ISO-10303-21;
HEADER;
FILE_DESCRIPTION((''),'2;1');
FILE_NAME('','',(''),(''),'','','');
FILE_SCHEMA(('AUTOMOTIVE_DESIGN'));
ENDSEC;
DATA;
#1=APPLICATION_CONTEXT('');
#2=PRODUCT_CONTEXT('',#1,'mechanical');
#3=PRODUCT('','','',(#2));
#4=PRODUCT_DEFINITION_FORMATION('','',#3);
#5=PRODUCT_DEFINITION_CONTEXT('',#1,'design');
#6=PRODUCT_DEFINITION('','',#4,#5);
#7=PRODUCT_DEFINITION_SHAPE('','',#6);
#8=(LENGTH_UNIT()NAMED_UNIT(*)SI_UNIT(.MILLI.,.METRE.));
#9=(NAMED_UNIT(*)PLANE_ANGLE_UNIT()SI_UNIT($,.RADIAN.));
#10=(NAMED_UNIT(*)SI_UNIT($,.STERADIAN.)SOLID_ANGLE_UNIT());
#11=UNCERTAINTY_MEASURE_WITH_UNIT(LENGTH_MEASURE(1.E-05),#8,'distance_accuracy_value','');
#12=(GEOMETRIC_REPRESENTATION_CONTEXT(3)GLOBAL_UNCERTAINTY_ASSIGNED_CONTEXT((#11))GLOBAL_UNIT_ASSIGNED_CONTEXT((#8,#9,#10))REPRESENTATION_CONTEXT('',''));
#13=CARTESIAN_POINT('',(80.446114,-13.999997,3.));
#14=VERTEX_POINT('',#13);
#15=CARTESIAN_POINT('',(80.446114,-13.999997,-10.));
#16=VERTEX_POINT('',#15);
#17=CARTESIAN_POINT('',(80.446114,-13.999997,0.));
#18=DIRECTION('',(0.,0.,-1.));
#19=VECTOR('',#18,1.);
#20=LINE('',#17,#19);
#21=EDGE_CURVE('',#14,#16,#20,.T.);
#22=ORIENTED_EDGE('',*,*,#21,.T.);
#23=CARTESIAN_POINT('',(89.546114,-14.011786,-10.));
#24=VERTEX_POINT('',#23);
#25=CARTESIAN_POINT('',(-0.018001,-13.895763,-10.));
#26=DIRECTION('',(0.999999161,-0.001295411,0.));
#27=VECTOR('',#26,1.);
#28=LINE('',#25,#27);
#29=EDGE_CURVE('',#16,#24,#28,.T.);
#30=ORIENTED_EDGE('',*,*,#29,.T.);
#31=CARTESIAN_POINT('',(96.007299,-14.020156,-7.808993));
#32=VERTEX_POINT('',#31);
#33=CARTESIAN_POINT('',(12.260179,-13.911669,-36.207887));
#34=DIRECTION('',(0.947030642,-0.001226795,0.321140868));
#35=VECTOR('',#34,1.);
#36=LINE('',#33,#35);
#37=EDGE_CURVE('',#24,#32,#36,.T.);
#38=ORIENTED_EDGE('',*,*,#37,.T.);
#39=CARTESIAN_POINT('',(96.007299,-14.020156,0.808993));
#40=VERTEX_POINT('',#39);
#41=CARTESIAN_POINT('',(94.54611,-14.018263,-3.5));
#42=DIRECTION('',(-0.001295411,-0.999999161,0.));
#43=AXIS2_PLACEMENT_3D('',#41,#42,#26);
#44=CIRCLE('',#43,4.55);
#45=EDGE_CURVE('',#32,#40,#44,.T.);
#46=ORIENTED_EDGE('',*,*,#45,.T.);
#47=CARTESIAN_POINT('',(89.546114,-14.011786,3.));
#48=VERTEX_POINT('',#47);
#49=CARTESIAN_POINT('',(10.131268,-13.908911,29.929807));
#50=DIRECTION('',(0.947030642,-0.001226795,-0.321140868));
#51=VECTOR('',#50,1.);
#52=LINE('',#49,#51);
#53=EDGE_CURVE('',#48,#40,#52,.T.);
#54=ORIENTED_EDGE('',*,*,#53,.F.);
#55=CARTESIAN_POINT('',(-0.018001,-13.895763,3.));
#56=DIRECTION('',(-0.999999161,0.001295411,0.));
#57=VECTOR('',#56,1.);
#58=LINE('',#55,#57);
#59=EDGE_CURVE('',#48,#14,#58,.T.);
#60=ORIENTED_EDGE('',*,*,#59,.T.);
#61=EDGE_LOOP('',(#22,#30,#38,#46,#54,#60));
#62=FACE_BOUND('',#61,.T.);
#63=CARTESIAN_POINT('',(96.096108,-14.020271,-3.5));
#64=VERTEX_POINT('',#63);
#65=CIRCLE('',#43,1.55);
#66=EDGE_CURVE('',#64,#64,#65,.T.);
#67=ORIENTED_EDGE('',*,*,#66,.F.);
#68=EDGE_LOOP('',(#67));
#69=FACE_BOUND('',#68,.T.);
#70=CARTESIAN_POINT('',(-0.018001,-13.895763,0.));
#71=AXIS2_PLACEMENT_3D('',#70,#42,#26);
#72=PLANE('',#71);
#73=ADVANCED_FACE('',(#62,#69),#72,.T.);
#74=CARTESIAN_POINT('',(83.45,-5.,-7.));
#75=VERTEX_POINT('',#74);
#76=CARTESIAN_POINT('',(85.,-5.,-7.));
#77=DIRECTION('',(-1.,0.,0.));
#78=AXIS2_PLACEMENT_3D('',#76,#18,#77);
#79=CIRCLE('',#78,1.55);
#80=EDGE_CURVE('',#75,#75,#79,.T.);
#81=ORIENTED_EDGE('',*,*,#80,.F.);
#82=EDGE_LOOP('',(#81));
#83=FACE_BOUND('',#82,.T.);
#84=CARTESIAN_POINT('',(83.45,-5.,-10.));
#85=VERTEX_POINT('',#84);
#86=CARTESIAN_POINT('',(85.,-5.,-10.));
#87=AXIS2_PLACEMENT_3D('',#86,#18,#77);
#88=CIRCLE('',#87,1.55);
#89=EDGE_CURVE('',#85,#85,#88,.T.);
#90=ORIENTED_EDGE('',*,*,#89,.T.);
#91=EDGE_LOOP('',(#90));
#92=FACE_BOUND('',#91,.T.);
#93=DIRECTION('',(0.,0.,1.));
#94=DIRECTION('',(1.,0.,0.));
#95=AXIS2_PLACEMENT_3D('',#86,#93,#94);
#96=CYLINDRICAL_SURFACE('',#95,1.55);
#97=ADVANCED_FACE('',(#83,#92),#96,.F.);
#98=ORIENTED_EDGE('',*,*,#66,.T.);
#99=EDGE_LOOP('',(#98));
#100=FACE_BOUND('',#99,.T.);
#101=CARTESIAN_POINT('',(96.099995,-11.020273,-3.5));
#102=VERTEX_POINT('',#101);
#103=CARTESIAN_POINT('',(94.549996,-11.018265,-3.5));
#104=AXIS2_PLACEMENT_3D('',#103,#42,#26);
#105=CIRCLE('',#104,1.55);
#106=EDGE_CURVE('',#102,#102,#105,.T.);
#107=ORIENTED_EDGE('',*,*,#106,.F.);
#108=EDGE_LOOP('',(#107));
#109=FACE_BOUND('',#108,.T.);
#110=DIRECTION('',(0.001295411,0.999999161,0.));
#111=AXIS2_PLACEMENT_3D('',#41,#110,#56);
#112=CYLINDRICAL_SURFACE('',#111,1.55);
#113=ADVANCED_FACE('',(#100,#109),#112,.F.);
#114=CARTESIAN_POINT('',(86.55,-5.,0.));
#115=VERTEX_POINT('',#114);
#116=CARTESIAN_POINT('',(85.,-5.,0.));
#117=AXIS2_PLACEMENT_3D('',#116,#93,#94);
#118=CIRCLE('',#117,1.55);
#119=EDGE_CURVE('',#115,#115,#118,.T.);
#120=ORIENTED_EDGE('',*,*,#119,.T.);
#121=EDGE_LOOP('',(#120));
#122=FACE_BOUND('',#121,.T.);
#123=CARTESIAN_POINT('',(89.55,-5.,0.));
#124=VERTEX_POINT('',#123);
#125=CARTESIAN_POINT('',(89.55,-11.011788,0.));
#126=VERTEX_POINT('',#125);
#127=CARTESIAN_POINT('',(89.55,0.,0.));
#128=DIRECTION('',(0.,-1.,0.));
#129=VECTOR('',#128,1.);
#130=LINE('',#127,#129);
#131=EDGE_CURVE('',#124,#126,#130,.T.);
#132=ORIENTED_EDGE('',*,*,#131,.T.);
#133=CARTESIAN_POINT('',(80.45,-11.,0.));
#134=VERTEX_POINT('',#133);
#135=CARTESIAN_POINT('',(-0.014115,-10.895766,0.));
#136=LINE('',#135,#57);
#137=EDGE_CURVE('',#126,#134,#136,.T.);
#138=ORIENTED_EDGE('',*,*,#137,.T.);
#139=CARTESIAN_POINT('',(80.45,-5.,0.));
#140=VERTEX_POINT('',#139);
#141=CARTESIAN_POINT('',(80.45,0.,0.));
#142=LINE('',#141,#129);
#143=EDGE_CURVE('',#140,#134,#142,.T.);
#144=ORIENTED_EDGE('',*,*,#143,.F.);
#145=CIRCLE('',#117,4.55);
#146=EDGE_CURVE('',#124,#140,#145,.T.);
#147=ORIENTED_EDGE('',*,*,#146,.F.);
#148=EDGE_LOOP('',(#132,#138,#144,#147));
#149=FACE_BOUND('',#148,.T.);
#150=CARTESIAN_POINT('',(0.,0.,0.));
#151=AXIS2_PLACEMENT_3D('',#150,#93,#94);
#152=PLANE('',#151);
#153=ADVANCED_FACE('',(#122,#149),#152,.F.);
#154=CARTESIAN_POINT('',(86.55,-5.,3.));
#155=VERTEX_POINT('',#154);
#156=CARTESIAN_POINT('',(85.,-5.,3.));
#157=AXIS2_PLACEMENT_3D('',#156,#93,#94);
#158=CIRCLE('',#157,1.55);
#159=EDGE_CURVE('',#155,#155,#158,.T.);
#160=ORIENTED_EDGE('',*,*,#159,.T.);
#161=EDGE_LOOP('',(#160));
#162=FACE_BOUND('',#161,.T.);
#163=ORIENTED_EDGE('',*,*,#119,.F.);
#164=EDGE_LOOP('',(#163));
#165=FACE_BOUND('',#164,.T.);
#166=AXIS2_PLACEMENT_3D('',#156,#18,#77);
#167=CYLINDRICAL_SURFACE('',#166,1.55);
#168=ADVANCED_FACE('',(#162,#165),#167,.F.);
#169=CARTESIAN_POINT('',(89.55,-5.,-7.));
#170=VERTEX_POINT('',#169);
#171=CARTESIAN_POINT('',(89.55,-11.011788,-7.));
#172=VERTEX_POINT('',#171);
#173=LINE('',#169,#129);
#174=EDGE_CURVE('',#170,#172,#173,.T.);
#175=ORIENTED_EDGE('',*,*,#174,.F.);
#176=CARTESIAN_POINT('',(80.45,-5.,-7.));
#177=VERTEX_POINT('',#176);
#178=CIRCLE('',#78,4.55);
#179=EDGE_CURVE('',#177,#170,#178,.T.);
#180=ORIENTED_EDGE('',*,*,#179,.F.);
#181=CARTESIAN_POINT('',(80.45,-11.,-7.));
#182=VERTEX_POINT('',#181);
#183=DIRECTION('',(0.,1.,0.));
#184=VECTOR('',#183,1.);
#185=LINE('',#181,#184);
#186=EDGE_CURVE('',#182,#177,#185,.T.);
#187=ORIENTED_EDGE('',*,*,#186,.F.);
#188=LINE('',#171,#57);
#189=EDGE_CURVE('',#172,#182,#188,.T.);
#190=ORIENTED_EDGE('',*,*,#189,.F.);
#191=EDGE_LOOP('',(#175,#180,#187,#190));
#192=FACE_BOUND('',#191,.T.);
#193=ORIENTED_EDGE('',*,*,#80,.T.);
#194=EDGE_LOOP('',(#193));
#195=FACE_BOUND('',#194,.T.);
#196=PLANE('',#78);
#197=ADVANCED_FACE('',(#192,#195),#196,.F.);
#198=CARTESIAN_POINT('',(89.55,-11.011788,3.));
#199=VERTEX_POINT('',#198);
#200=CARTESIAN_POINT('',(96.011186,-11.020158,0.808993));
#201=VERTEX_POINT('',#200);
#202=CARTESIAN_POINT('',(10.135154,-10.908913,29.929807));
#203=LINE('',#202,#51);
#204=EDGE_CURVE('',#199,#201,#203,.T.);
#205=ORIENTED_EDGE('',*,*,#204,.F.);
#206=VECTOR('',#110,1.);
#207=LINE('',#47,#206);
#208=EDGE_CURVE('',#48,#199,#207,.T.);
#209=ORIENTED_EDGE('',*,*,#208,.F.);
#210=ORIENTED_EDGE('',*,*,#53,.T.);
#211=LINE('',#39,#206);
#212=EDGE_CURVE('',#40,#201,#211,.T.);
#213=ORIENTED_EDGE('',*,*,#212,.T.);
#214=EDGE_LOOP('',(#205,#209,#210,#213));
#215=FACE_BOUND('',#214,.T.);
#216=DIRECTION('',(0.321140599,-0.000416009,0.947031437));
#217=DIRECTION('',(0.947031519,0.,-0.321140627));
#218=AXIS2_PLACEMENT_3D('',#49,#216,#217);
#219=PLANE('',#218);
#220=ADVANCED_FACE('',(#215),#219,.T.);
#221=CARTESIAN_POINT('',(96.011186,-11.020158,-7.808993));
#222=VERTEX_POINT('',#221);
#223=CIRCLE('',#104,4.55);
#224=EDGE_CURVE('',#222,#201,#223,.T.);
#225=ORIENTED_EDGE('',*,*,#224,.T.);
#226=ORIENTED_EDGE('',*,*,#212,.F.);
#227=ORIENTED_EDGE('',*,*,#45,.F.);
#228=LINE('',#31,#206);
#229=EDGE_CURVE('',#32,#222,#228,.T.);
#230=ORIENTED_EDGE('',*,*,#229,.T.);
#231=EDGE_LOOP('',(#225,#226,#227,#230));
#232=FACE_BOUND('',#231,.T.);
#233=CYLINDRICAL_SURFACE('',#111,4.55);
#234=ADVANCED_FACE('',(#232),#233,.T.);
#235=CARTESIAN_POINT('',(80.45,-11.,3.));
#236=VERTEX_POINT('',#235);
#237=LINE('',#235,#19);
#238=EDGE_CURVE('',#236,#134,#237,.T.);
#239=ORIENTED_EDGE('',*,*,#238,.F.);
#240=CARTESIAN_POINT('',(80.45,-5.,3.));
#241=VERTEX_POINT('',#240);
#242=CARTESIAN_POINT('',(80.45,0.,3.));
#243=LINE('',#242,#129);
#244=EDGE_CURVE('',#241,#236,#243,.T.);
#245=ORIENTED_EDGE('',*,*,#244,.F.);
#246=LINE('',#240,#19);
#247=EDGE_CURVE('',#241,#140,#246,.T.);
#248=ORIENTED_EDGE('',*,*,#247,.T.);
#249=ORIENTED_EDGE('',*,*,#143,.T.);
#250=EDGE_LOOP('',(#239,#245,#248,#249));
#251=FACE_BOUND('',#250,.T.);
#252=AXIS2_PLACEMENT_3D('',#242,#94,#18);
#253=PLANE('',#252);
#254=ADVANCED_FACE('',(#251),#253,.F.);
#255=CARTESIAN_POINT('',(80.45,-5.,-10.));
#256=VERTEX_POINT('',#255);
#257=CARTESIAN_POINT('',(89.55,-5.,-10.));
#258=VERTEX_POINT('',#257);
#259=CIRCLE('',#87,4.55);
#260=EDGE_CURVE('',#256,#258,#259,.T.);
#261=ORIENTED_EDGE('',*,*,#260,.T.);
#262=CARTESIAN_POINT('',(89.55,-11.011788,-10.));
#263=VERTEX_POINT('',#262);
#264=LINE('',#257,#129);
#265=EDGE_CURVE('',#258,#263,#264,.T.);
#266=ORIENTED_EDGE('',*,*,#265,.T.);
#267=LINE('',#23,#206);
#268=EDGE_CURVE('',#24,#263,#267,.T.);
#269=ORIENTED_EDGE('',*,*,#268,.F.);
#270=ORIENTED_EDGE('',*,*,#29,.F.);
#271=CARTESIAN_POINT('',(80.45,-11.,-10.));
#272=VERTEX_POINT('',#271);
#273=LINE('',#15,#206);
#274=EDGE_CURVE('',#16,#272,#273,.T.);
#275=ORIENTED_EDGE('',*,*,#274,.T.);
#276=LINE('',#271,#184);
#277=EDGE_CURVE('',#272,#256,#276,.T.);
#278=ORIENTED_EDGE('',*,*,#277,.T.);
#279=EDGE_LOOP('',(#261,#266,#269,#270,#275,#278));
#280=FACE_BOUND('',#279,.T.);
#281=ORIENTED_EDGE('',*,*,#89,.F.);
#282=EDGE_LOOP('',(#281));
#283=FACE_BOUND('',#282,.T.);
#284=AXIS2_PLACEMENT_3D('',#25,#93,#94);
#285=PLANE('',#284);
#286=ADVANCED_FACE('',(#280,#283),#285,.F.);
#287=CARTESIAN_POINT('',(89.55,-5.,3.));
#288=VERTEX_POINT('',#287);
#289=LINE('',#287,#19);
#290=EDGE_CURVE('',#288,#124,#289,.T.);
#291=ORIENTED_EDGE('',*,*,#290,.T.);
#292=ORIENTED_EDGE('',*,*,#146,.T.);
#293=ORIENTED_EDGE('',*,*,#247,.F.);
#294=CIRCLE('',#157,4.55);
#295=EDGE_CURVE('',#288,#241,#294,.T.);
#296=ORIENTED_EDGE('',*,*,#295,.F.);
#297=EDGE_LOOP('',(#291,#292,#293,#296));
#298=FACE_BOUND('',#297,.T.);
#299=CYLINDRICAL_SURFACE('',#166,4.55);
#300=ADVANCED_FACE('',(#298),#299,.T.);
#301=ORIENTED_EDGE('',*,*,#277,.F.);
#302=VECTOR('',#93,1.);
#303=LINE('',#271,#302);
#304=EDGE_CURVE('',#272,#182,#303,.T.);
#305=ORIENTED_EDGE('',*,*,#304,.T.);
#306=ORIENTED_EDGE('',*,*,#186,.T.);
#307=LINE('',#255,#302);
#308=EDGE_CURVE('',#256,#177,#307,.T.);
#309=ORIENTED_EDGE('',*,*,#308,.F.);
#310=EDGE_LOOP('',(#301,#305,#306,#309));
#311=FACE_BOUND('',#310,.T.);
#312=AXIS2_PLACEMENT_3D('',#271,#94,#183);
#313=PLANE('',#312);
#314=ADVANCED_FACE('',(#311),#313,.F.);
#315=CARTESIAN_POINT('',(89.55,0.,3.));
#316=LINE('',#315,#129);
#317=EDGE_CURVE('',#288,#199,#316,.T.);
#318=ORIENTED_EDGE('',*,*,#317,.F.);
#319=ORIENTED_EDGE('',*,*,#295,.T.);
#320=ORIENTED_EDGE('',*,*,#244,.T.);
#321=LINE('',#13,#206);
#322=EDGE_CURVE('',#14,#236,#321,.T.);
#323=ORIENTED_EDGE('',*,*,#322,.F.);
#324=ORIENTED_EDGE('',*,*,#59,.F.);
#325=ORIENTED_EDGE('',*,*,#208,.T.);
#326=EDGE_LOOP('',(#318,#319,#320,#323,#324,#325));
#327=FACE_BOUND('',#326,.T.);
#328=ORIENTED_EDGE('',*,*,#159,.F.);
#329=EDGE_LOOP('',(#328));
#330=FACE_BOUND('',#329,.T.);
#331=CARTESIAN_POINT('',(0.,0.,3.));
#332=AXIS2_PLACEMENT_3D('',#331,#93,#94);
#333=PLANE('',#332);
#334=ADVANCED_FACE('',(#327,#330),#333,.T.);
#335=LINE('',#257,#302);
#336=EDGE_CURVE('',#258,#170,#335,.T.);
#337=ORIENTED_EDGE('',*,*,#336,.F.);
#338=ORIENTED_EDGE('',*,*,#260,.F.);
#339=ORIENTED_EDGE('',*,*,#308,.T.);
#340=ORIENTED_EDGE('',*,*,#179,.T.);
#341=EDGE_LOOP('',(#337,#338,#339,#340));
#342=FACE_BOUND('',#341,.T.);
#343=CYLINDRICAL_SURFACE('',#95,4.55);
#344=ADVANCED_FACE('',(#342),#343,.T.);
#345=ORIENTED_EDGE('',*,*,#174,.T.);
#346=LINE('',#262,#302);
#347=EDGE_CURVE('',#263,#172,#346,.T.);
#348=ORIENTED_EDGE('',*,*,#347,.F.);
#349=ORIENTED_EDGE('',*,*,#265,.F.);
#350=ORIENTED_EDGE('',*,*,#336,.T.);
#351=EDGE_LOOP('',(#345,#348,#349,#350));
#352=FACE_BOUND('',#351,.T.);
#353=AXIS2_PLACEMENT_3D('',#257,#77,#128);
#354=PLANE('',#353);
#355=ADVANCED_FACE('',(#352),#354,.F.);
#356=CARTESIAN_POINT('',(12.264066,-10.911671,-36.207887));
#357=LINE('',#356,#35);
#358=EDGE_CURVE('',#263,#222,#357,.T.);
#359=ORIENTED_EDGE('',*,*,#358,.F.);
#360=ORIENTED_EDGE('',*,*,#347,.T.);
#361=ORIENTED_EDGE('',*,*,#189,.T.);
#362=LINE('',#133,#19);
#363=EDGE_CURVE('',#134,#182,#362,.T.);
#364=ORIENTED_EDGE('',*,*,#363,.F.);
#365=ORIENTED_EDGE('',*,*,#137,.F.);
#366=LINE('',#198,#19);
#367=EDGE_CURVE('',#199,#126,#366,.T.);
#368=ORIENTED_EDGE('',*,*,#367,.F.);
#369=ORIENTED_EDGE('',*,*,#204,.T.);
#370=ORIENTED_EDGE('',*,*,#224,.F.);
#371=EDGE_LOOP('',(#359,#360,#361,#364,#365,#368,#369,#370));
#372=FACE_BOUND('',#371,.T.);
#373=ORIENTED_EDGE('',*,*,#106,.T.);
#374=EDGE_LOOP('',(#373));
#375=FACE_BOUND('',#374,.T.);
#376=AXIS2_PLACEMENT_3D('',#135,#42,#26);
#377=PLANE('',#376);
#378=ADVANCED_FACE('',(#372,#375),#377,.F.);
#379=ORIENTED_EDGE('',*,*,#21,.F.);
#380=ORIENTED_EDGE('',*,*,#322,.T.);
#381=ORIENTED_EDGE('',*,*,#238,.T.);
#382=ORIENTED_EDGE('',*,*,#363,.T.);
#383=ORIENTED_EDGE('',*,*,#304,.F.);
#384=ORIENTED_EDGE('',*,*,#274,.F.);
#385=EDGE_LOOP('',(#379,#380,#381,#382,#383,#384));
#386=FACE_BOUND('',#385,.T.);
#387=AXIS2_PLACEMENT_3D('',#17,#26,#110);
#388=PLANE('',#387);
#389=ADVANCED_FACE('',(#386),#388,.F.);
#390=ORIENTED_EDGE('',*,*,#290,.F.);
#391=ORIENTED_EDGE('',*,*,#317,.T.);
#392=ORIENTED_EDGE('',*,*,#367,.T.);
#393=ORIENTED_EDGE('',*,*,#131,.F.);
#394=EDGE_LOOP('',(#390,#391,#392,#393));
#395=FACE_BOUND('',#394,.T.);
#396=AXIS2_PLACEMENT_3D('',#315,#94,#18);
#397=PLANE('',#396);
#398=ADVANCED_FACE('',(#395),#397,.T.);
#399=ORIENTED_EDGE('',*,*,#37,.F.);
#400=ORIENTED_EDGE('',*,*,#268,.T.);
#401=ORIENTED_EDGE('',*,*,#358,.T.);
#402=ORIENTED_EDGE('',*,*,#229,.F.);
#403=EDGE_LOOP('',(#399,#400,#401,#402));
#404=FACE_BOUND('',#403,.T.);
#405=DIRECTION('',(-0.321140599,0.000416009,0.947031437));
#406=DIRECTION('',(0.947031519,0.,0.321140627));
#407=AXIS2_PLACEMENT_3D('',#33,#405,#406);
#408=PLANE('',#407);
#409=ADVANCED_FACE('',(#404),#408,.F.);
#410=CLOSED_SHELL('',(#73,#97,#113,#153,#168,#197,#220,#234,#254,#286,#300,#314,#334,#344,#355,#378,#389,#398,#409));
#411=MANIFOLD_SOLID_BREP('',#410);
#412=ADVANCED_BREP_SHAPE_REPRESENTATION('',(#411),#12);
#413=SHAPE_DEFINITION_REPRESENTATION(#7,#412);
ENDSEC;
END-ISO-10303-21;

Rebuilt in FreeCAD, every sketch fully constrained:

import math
import FreeCAD as App
import Part
import Sketcher

doc = App.newDocument("Part")
body = doc.addObject("PartDesign::Body", "Body")

sketch1 = body.newObject("Sketcher::SketchObject", "Sketch")
sketch1.AttachmentSupport = (doc.getObject("XY_Plane"), [""])
sketch1.MapMode = "FlatFace"
sketch1.addGeometry([
    Part.ArcOfCircle(Part.Circle(App.Vector(85, -5, 0), App.Vector(0, 0, 1), 4.5), math.radians(0), math.radians(180)),
    Part.LineSegment(App.Vector(80.5, -5, 0), App.Vector(80.5, -11, 0)),
    Part.LineSegment(App.Vector(80.5, -11, 0), App.Vector(89.5, -11, 0)),
    Part.LineSegment(App.Vector(89.5, -11, 0), App.Vector(89.5, -5, 0)),
    Part.Circle(App.Vector(85, -5, 0), App.Vector(0, 0, 1), 1.6),
], False)
sketch1.addConstraint([
    Sketcher.Constraint("Tangent", 0, 2, 1, 1),
    Sketcher.Constraint("Coincident", 1, 2, 2, 1),
    Sketcher.Constraint("Coincident", 2, 2, 3, 1),
    Sketcher.Constraint("Tangent", 3, 2, 0, 1),
    Sketcher.Constraint("Vertical", 1),
    Sketcher.Constraint("Vertical", 3),
    Sketcher.Constraint("Coincident", 4, 3, 0, 3),
    Sketcher.Constraint("Diameter", 4, 3.1),
    Sketcher.Constraint("DistanceY", 1, 2, 1, 1, 6.0),
    Sketcher.Constraint("Radius", 0, 4.55),
    Sketcher.Constraint("DistanceX", -1, 1, 0, 3, 85.0),
    Sketcher.Constraint("DistanceY", 0, 3, -1, 1, 5.0),
    Sketcher.Constraint("DistanceY", 3, 1, 3, 2, 6.011788),
])
pad1 = body.newObject("PartDesign::Pad", "Pad")
pad1.Profile = sketch1
pad1.Length = 3
body2 = doc.addObject("PartDesign::Body", "Body001")

sketch2 = body2.newObject("Sketcher::SketchObject", "Sketch001")
sketch2.AttachmentSupport = (doc.getObject("XY_Plane001"), [""])
sketch2.MapMode = "FlatFace"
sketch2.AttachmentOffset = App.Placement(App.Vector(0, 0, -7), App.Rotation())
sketch2.addGeometry([
    Part.LineSegment(App.Vector(89.5, -11, 0), App.Vector(80.5, -11, 0)),
    Part.LineSegment(App.Vector(80.5, -11, 0), App.Vector(80.5, -5, 0)),
    Part.ArcOfCircle(Part.Circle(App.Vector(85, -5, 0), App.Vector(0, 0, 1), 4.5), math.radians(0), math.radians(180)),
    Part.LineSegment(App.Vector(89.5, -5, 0), App.Vector(89.5, -11, 0)),
    Part.Circle(App.Vector(85, -5, 0), App.Vector(0, 0, 1), 1.6),
], False)
sketch2.addConstraint([
    Sketcher.Constraint("Coincident", 0, 2, 1, 1),
    Sketcher.Constraint("Tangent", 1, 2, 2, 2),
    Sketcher.Constraint("Tangent", 2, 1, 3, 1),
    Sketcher.Constraint("Coincident", 3, 2, 0, 1),
    Sketcher.Constraint("Vertical", 1),
    Sketcher.Constraint("Vertical", 3),
    Sketcher.Constraint("Coincident", 4, 3, 2, 3),
    Sketcher.Constraint("Diameter", 4, 3.1),
    Sketcher.Constraint("DistanceY", 1, 1, 1, 2, 6.0),
    Sketcher.Constraint("Radius", 2, 4.55),
    Sketcher.Constraint("DistanceX", -1, 1, 2, 3, 85.0),
    Sketcher.Constraint("DistanceY", 2, 3, -1, 1, 5.0),
    Sketcher.Constraint("DistanceY", 3, 2, 3, 1, 6.011788),
])
pad2 = body2.newObject("PartDesign::Pad", "Pad001")
pad2.Profile = sketch2
pad2.Length = 3
pad2.Reversed = True
body.AllowCompound = True
doc.recompute()

boolean = body.newObject("PartDesign::Boolean", "Boolean")
boolean.Type = "Fuse"
boolean.addObjects([body2])

sketch3 = body.newObject("Sketcher::SketchObject", "Sketch002")
sketch3.Placement = App.Placement(App.Vector(-0.014115, -10.895766, 0), App.Rotation(App.Vector(0.999999161, -0.001295411, 0), App.Vector(0, 0, 1), App.Vector(-0.001295411, -0.999999161, 0), "ZXY"))
sketch3.addGeometry([
    Part.LineSegment(App.Vector(89.6, 3, 0), App.Vector(80.5, 3, 0)),
    Part.LineSegment(App.Vector(80.5, 3, 0), App.Vector(80.5, -10, 0)),
    Part.LineSegment(App.Vector(80.5, -10, 0), App.Vector(89.6, -10, 0)),
    Part.LineSegment(App.Vector(89.6, -10, 0), App.Vector(96, -7.8, 0)),
    Part.ArcOfCircle(Part.Circle(App.Vector(94.6, -3.5, 0), App.Vector(0, 0, 1), 4.5), math.radians(-71), math.radians(71)),
    Part.LineSegment(App.Vector(96, 0.8, 0), App.Vector(89.6, 3, 0)),
    Part.Circle(App.Vector(94.6, -3.5, 0), App.Vector(0, 0, 1), 1.6),
], False)
sketch3.addConstraint([
    Sketcher.Constraint("Coincident", 0, 2, 1, 1),
    Sketcher.Constraint("Coincident", 1, 2, 2, 1),
    Sketcher.Constraint("Coincident", 2, 2, 3, 1),
    Sketcher.Constraint("Tangent", 3, 2, 4, 1),
    Sketcher.Constraint("Tangent", 4, 2, 5, 1),
    Sketcher.Constraint("Coincident", 5, 2, 0, 1),
    Sketcher.Constraint("Horizontal", 0),
    Sketcher.Constraint("Vertical", 1),
    Sketcher.Constraint("Horizontal", 2),
    Sketcher.Constraint("Coincident", 6, 3, 4, 3),
    Sketcher.Constraint("Vertical", 3, 2, 4, 2),
    Sketcher.Constraint("Vertical", 2, 2, 5, 2),
    Sketcher.Constraint("Diameter", 6, 3.1),
    Sketcher.Constraint("DistanceY", 1, 2, 1, 1, 13.0),
    Sketcher.Constraint("Radius", 4, 4.55),
    Sketcher.Constraint("DistanceY", -1, 1, 0, 2, 3.0),
    Sketcher.Constraint("DistanceX", 2, 2, 4, 3, 5.0),
    Sketcher.Constraint("DistanceX", 1, 2, 3, 2, 15.561199),
    Sketcher.Constraint("DistanceX", -1, 1, 4, 3, 94.56419),
])
pad3 = body.newObject("PartDesign::Pad", "Pad002")
pad3.Profile = sketch3
pad3.Length = 3

doc.recompute()
